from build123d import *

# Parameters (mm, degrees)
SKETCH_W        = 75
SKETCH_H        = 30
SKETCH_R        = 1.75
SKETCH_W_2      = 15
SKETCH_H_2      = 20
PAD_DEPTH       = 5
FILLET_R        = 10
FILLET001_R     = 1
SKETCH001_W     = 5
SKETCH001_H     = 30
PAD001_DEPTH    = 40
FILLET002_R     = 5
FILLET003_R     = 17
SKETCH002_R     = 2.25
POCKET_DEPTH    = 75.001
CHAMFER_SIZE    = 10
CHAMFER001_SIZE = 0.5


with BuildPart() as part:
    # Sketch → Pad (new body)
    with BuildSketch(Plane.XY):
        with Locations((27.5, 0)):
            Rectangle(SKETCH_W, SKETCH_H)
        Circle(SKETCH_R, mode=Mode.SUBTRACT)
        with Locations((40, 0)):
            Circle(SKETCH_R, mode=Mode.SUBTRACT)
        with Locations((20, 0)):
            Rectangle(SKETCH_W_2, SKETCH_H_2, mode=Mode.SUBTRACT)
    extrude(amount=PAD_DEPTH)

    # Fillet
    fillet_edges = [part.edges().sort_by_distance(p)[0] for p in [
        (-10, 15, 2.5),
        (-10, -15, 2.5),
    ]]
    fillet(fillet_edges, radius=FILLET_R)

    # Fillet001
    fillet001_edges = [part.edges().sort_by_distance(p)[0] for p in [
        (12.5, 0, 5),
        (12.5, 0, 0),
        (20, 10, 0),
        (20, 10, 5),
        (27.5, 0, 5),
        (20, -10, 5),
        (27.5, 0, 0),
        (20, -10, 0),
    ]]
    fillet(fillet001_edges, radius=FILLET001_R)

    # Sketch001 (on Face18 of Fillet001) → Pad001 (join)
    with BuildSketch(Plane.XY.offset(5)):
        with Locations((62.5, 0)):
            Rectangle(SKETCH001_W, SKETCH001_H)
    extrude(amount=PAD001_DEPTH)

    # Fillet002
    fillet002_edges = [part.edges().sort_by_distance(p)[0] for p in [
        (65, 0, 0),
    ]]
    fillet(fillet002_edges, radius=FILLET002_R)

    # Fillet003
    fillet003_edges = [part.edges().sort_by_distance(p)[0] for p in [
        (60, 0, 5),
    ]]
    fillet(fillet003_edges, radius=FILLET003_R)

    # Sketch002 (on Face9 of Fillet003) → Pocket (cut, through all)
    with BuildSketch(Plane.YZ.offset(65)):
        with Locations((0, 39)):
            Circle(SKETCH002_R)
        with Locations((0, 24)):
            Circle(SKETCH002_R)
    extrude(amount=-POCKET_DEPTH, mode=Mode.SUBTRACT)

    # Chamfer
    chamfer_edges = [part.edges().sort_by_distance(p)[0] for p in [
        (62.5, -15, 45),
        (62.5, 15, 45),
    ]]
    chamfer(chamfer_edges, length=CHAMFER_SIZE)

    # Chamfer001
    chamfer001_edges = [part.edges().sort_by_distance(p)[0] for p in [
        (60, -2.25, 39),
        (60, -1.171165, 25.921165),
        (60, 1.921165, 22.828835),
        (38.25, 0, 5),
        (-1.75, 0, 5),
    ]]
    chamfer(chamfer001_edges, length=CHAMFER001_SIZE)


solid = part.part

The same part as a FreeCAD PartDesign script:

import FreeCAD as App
import Part
import Sketcher
from FreeCAD import Vector
Q = App.Units.Quantity


def edges_at(feature, points):
    """Names of the edges that pass closest to the given points."""
    edges = feature.Shape.Edges
    near = lambda p: min(range(len(edges)), key=lambda i: edges[i].distToShape(Part.Vertex(*p))[0])
    return sorted({f"Edge{near(p) + 1}" for p in points})

doc = App.newDocument("Part")
body = doc.addObject("PartDesign::Body", "Body")

sketch1 = body.newObject("Sketcher::SketchObject", "Sketch")
sketch1.AttachmentSupport = (doc.getObject("XY_Plane"), [""])
sketch1.MapMode = "FlatFace"
sketch1.addGeometry([
    Part.LineSegment(Vector(-10, 15, 0), Vector(-10, -15, 0)),
    Part.LineSegment(Vector(-10, -15, 0), Vector(65, -15, 0)),
    Part.LineSegment(Vector(65, -15, 0), Vector(65, 15, 0)),
    Part.LineSegment(Vector(65, 15, 0), Vector(-10, 15, 0)),
    Part.Circle(Vector(0, 0, 0), Vector(0, 0, 1), 1.8),
    Part.LineSegment(Vector(27.5, -10, 0), Vector(12.5, -10, 0)),
    Part.LineSegment(Vector(12.5, -10, 0), Vector(12.5, 10, 0)),
    Part.LineSegment(Vector(12.5, 10, 0), Vector(27.5, 10, 0)),
    Part.LineSegment(Vector(27.5, 10, 0), Vector(27.5, -10, 0)),
    Part.Circle(Vector(40, 0, 0), Vector(0, 0, 1), 1.8),
], False)
sketch1.addConstraint([
    Sketcher.Constraint("Coincident", 0, 2, 1, 1),
    Sketcher.Constraint("Coincident", 1, 2, 2, 1),
    Sketcher.Constraint("Coincident", 2, 2, 3, 1),
    Sketcher.Constraint("Coincident", 3, 2, 0, 1),
    Sketcher.Constraint("Coincident", 5, 2, 6, 1),
    Sketcher.Constraint("Coincident", 6, 2, 7, 1),
    Sketcher.Constraint("Coincident", 7, 2, 8, 1),
    Sketcher.Constraint("Coincident", 8, 2, 5, 1),
    Sketcher.Constraint("Vertical", 0),
    Sketcher.Constraint("Horizontal", 1),
    Sketcher.Constraint("Vertical", 2),
    Sketcher.Constraint("Horizontal", 3),
    Sketcher.Constraint("Horizontal", 5),
    Sketcher.Constraint("Vertical", 6),
    Sketcher.Constraint("Horizontal", 7),
    Sketcher.Constraint("Vertical", 8),
    Sketcher.Constraint("Coincident", 4, 3, -1, 1),
    Sketcher.Constraint("Equal", 4, 9),
    Sketcher.Constraint("PointOnObject", 9, 3, -1),
    Sketcher.Constraint("Diameter", 4, Q("3.5 mm")),
    Sketcher.Constraint("DistanceX", 1, 1, 1, 2, Q("75 mm")),
    Sketcher.Constraint("DistanceX", 5, 2, 5, 1, Q("15 mm")),
    Sketcher.Constraint("DistanceY", 0, 2, 0, 1, Q("30 mm")),
    Sketcher.Constraint("DistanceY", 6, 1, 6, 2, Q("20 mm")),
    Sketcher.Constraint("DistanceX", -1, 1, 9, 3, Q("40 mm")),
    Sketcher.Constraint("DistanceX", 0, 2, -1, 1, Q("10 mm")),
    Sketcher.Constraint("DistanceY", 0, 2, -1, 1, Q("15 mm")),
    Sketcher.Constraint("DistanceY", 5, 2, -1, 1, Q("10 mm")),
    Sketcher.Constraint("DistanceX", -1, 1, 5, 2, Q("12.5 mm")),
])
pad1 = body.newObject("PartDesign::Pad", "Pad")
pad1.Profile = sketch1
pad1.Length = 5
doc.recompute()

fillet = body.newObject("PartDesign::Fillet", "Fillet")
fillet.Base = (pad1, edges_at(pad1, [(-10, 15, 2.5), (-10, -15, 2.5)]))
fillet.Radius = 10
doc.recompute()

fillet2 = body.newObject("PartDesign::Fillet", "Fillet001")
fillet2.Base = (fillet, edges_at(fillet, [
    (12.5, 0, 5),
    (12.5, 0, 0),
    (20, 10, 0),
    (20, 10, 5),
    (27.5, 0, 5),
    (20, -10, 5),
    (27.5, 0, 0),
    (20, -10, 0),
]))
fillet2.Radius = 1

sketch2 = body.newObject("Sketcher::SketchObject", "Sketch001")
sketch2.AttachmentSupport = (doc.getObject("XY_Plane"), [""])
sketch2.MapMode = "FlatFace"
sketch2.AttachmentOffset = App.Placement(Vector(0, 0, 5), App.Rotation())
sketch2.addGeometry([
    Part.LineSegment(Vector(60, 15, 0), Vector(60, -15, 0)),
    Part.LineSegment(Vector(60, -15, 0), Vector(65, -15, 0)),
    Part.LineSegment(Vector(65, -15, 0), Vector(65, 15, 0)),
    Part.LineSegment(Vector(65, 15, 0), Vector(60, 15, 0)),
], False)
sketch2.addConstraint([
    Sketcher.Constraint("Coincident", 0, 2, 1, 1),
    Sketcher.Constraint("Coincident", 1, 2, 2, 1),
    Sketcher.Constraint("Coincident", 2, 2, 3, 1),
    Sketcher.Constraint("Coincident", 3, 2, 0, 1),
    Sketcher.Constraint("Vertical", 0),
    Sketcher.Constraint("Horizontal", 1),
    Sketcher.Constraint("Vertical", 2),
    Sketcher.Constraint("Horizontal", 3),
    Sketcher.Constraint("DistanceX", 1, 1, 1, 2, Q("5 mm")),
    Sketcher.Constraint("DistanceY", 0, 2, 0, 1, Q("30 mm")),
    Sketcher.Constraint("DistanceX", -1, 1, 0, 2, Q("60 mm")),
    Sketcher.Constraint("DistanceY", 0, 2, -1, 1, Q("15 mm")),
])
pad2 = body.newObject("PartDesign::Pad", "Pad001")
pad2.Profile = sketch2
pad2.Length = 40
doc.recompute()

fillet3 = body.newObject("PartDesign::Fillet", "Fillet002")
fillet3.Base = (pad2, edges_at(pad2, [(65, 0, 0)]))
fillet3.Radius = 5
doc.recompute()

fillet4 = body.newObject("PartDesign::Fillet", "Fillet003")
fillet4.Base = (fillet3, edges_at(fillet3, [(60, 0, 5)]))
fillet4.Radius = 17

sketch3 = body.newObject("Sketcher::SketchObject", "Sketch002")
sketch3.AttachmentSupport = (doc.getObject("YZ_Plane"), [""])
sketch3.MapMode = "FlatFace"
sketch3.AttachmentOffset = App.Placement(Vector(0, 0, 65), App.Rotation())
sketch3.addGeometry([
    Part.Circle(Vector(0, 39, 0), Vector(0, 0, 1), 2.2),
    Part.Circle(Vector(0, 24, 0), Vector(0, 0, 1), 2.2),
], False)
sketch3.addConstraint([
    Sketcher.Constraint("Equal", 0, 1),
    Sketcher.Constraint("PointOnObject", 0, 3, -2),
    Sketcher.Constraint("PointOnObject", 1, 3, -2),
    Sketcher.Constraint("Diameter", 0, Q("4.5 mm")),
    Sketcher.Constraint("DistanceY", -1, 1, 0, 3, Q("39 mm")),
    Sketcher.Constraint("DistanceY", -1, 1, 1, 3, Q("24 mm")),
])
pocket1 = body.newObject("PartDesign::Pocket", "Pocket")
pocket1.Profile = sketch3
pocket1.Type = "ThroughAll"
doc.recompute()

chamfer = body.newObject("PartDesign::Chamfer", "Chamfer")
chamfer.Base = (pocket1, edges_at(pocket1, [(62.5, -15, 45), (62.5, 15, 45)]))
chamfer.Size = 10
doc.recompute()

chamfer2 = body.newObject("PartDesign::Chamfer", "Chamfer001")
chamfer2.Base = (chamfer, edges_at(chamfer, [
    (60, -2.25, 39),
    (60, -1.171, 25.921),
    (60, 1.921, 22.829),
    (38.25, 0, 5),
    (-1.75, 0, 5),
]))
chamfer2.Size = 0.5

doc.recompute()
